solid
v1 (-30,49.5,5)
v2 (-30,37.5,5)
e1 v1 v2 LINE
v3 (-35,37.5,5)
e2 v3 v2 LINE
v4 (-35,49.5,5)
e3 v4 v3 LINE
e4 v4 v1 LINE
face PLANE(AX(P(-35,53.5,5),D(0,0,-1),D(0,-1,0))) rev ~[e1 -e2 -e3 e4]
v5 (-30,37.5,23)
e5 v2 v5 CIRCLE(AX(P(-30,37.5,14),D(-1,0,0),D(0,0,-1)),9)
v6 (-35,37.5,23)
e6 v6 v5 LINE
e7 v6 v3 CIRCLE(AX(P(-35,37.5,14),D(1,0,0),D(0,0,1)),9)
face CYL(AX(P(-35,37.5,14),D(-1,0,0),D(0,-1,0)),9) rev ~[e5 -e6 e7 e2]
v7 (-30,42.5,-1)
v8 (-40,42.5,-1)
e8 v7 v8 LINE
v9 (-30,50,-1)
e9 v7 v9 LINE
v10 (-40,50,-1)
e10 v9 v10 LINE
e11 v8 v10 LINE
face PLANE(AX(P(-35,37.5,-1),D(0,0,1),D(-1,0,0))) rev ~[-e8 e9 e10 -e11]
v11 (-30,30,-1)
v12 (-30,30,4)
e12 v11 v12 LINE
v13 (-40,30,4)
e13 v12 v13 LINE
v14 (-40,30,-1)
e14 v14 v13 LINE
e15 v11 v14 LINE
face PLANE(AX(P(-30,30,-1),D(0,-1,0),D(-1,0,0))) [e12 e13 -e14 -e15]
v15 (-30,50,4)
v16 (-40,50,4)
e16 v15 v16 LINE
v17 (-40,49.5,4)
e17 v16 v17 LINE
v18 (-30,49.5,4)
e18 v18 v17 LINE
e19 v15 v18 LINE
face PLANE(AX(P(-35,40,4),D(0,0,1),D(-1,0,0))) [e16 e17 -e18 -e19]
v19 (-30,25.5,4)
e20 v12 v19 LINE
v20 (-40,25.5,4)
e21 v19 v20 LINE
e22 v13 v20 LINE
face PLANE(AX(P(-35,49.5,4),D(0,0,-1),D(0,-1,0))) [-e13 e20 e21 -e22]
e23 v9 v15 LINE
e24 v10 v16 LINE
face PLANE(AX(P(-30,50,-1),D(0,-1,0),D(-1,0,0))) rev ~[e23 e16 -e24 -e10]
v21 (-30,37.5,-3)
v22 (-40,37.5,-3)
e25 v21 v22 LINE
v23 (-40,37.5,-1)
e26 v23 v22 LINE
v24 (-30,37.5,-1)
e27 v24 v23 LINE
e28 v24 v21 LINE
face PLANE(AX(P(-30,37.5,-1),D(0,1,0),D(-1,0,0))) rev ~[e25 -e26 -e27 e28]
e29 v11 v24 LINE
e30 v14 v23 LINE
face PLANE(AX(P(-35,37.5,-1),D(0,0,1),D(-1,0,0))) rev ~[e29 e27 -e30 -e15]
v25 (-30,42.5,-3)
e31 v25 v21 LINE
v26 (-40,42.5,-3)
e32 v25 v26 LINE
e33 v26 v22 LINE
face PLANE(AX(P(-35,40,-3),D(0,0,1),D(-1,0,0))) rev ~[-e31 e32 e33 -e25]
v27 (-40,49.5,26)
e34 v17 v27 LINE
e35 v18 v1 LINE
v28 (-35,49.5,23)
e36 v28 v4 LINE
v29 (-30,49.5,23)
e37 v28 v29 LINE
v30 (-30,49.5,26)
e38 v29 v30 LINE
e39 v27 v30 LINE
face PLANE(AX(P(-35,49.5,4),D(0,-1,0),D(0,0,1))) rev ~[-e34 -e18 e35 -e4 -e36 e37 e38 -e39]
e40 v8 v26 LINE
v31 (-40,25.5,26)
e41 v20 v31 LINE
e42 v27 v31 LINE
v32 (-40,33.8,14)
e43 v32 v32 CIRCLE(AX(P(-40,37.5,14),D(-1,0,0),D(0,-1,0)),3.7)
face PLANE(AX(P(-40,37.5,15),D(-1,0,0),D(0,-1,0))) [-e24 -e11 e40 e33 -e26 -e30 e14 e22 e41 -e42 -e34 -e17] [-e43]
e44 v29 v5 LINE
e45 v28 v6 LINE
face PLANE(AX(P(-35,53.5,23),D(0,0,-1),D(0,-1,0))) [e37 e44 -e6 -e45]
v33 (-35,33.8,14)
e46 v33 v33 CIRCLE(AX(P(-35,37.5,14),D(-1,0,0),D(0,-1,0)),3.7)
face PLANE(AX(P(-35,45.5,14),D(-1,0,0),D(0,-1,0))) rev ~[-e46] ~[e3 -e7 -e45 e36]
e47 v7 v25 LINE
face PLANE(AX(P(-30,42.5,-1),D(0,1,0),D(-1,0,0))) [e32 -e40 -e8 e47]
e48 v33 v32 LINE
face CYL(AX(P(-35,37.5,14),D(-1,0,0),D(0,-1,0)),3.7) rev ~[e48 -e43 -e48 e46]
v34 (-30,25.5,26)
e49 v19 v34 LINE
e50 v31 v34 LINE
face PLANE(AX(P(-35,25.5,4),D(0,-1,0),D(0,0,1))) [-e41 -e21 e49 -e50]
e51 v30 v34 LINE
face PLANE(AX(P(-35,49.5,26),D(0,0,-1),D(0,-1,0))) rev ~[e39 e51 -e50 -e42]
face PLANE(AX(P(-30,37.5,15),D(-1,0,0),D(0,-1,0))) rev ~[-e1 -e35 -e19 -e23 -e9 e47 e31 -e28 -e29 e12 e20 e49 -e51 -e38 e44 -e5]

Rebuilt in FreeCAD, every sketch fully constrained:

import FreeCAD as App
import Part
import Sketcher
from FreeCAD import Vector

doc = App.newDocument("Part")
body = doc.addObject("PartDesign::Body", "Body")

# Sketch on XY plane
sketch1 = body.newObject("Sketcher::SketchObject", "Sketch")
sketch1.AttachmentSupport = (doc.getObject("XY_Plane"), [""])
sketch1.MapMode = "FlatFace"
sketch1.addGeometry([
    Part.LineSegment(Vector(-5, 8, 0), Vector(-5, -12, 0)),
    Part.LineSegment(Vector(-5, -12, 0), Vector(5, -12, 0)),
    Part.LineSegment(Vector(5, -12, 0), Vector(5, 8, 0)),
    Part.LineSegment(Vector(5, 8, 0), Vector(-5, 8, 0)),
], False)
sketch1.addConstraint([
    Sketcher.Constraint("Coincident", 0, 2, 1, 1),
    Sketcher.Constraint("Coincident", 1, 2, 2, 1),
    Sketcher.Constraint("Coincident", 2, 2, 3, 1),
    Sketcher.Constraint("Coincident", 3, 2, 0, 1),
    Sketcher.Constraint("Vertical", 0),
    Sketcher.Constraint("Horizontal", 1),
    Sketcher.Constraint("Vertical", 2),
    Sketcher.Constraint("Horizontal", 3),
    Sketcher.Constraint("DistanceX", 1, 1, 1, 2, 10.0),
    Sketcher.Constraint("DistanceY", 0, 2, 0, 1, 20.0),
    Sketcher.Constraint("DistanceX", 0, 2, -1, 1, 5.0),
    Sketcher.Constraint("DistanceY", 0, 2, -1, 1, 12.5),
])
pad1 = body.newObject("PartDesign::Pad", "Pad")
pad1.Profile = sketch1
pad1.Length = 5

# Sketch on XY plane
sketch2 = body.newObject("Sketcher::SketchObject", "Sketch001")
sketch2.AttachmentSupport = (doc.getObject("XY_Plane"), [""])
sketch2.MapMode = "FlatFace"
sketch2.addGeometry([
    Part.LineSegment(Vector(-5, 5, 0), Vector(-5, -5, 0)),
    Part.LineSegment(Vector(-5, -5, 0), Vector(5, -5, 0)),
    Part.LineSegment(Vector(5, -5, 0), Vector(5, 5, 0)),
    Part.LineSegment(Vector(5, 5, 0), Vector(-5, 5, 0)),
], False)
sketch2.addConstraint([
    Sketcher.Constraint("Coincident", 0, 2, 1, 1),
    Sketcher.Constraint("Coincident", 1, 2, 2, 1),
    Sketcher.Constraint("Coincident", 2, 2, 3, 1),
    Sketcher.Constraint("Coincident", 3, 2, 0, 1),
    Sketcher.Constraint("Vertical", 0),
    Sketcher.Constraint("Horizontal", 1),
    Sketcher.Constraint("Vertical", 2),
    Sketcher.Constraint("Horizontal", 3),
    Sketcher.Constraint("Symmetric", 0, 2, 2, 2, -1, 1),
    Sketcher.Constraint("Equal", 3, 0),
    Sketcher.Constraint("DistanceX", 1, 1, 1, 2, 10.0),
])
pad2 = body.newObject("PartDesign::Pad", "Pad001")
pad2.Profile = sketch2
pad2.Length = 6

# Sketch on YZ plane
sketch3 = body.newObject("Sketcher::SketchObject", "Sketch002")
sketch3.AttachmentSupport = (doc.getObject("YZ_Plane"), [""])
sketch3.MapMode = "FlatFace"
sketch3.addGeometry([
    Part.LineSegment(Vector(-12, 27, 0), Vector(-12, 5, 0)),
    Part.LineSegment(Vector(-12, 5, 0), Vector(12, 5, 0)),
    Part.LineSegment(Vector(12, 5, 0), Vector(12, 27, 0)),
    Part.LineSegment(Vector(12, 27, 0), Vector(-12, 27, 0)),
], False)
sketch3.addConstraint([
    Sketcher.Constraint("Coincident", 0, 2, 1, 1),
    Sketcher.Constraint("Coincident", 1, 2, 2, 1),
    Sketcher.Constraint("Coincident", 2, 2, 3, 1),
    Sketcher.Constraint("Coincident", 3, 2, 0, 1),
    Sketcher.Constraint("Vertical", 0),
    Sketcher.Constraint("Horizontal", 1),
    Sketcher.Constraint("Vertical", 2),
    Sketcher.Constraint("Horizontal", 3),
    Sketcher.Constraint("DistanceX", 1, 1, 1, 2, 24.0),
    Sketcher.Constraint("DistanceY", 0, 2, 0, 1, 22.0),
    Sketcher.Constraint("DistanceX", 0, 2, -1, 1, 12.0),
    Sketcher.Constraint("DistanceY", -1, 1, 0, 2, 5.0),
])
pad3 = body.newObject("PartDesign::Pad", "Pad002")
pad3.Profile = sketch3
pad3.Length = 10
pad3.Midplane = True

# Sketch on YZ plane
sketch4 = body.newObject("Sketcher::SketchObject", "Sketch003")
sketch4.AttachmentSupport = (doc.getObject("YZ_Plane"), [""])
sketch4.MapMode = "FlatFace"
sketch4.addGeometry([
    Part.LineSegment(Vector(-16, 24, 0), Vector(-16, 6, 0)),
    Part.LineSegment(Vector(-16, 6, 0), Vector(0, 6, 0)),
    Part.LineSegment(Vector(0, 6, 0), Vector(0, 24, 0)),
    Part.LineSegment(Vector(0, 24, 0), Vector(-16, 24, 0)),
], False)
sketch4.addConstraint([
    Sketcher.Constraint("Coincident", 0, 2, 1, 1),
    Sketcher.Constraint("Coincident", 1, 2, 2, 1),
    Sketcher.Constraint("Coincident", 2, 2, 3, 1),
    Sketcher.Constraint("Coincident", 3, 2, 0, 1),
    Sketcher.Constraint("Vertical", 0),
    Sketcher.Constraint("Horizontal", 1),
    Sketcher.Constraint("Vertical", 2),
    Sketcher.Constraint("Horizontal", 3),
    Sketcher.Constraint("PointOnObject", 1, 2, -2),
    Sketcher.Constraint("DistanceX", 1, 1, 1, 2, 16.0),
    Sketcher.Constraint("DistanceY", 0, 2, 0, 1, 18.0),
    Sketcher.Constraint("DistanceY", -1, 1, 0, 2, 6.0),
])
pocket1 = body.newObject("PartDesign::Pocket", "Pocket")
pocket1.Profile = sketch4
pocket1.Length = 6

# Sketch on YZ plane
sketch5 = body.newObject("Sketcher::SketchObject", "Sketch004")
sketch5.AttachmentSupport = (doc.getObject("YZ_Plane"), [""])
sketch5.MapMode = "FlatFace"
sketch5.addGeometry(Part.Circle(Vector(0, 15, 0), Vector(0, 0, 1), 3.7), False)
sketch5.addConstraint([
    Sketcher.Constraint("PointOnObject", 0, 3, -2),
    Sketcher.Constraint("Diameter", 0, 7.4),
    Sketcher.Constraint("DistanceY", -1, 1, 0, 3, 15.0),
])
pocket2 = body.newObject("PartDesign::Pocket", "Pocket001")
pocket2.Profile = sketch5
pocket2.Length = 20
pocket2.Midplane = True

# Sketch on XY plane
sketch6 = body.newObject("Sketcher::SketchObject", "Sketch005")
sketch6.AttachmentSupport = (doc.getObject("XY_Plane"), [""])
sketch6.MapMode = "FlatFace"
sketch6.addGeometry([
    Part.LineSegment(Vector(-5, 0, 0), Vector(-5, -5, 0)),
    Part.LineSegment(Vector(-5, -5, 0), Vector(5, -5, 0)),
    Part.LineSegment(Vector(5, -5, 0), Vector(5, 0, 0)),
    Part.LineSegment(Vector(5, 0, 0), Vector(-5, 0, 0)),
], False)
sketch6.addConstraint([
    Sketcher.Constraint("Coincident", 0, 2, 1, 1),
    Sketcher.Constraint("Coincident", 1, 2, 2, 1),
    Sketcher.Constraint("Coincident", 2, 2, 3, 1),
    Sketcher.Constraint("Coincident", 3, 2, 0, 1),
    Sketcher.Constraint("Vertical", 0),
    Sketcher.Constraint("Horizontal", 1),
    Sketcher.Constraint("Vertical", 2),
    Sketcher.Constraint("Horizontal", 3),
    Sketcher.Constraint("Symmetric", 2, 2, 3, 2, -1, 1),
    Sketcher.Constraint("DistanceX", 1, 1, 1, 2, 10.0),
    Sketcher.Constraint("DistanceY", 0, 2, 0, 1, 5.0),
])
pad4 = body.newObject("PartDesign::Pad", "Pad003")
pad4.Profile = sketch6
pad4.Length = 2
pad4.Reversed = True

# Sketch on YZ plane
sketch7 = body.newObject("Sketcher::SketchObject", "Sketch006")
sketch7.AttachmentSupport = (doc.getObject("YZ_Plane"), [""])
sketch7.MapMode = "FlatFace"
sketch7.addGeometry(Part.Circle(Vector(0, 15, 0), Vector(0, 0, 1), 9), False)
sketch7.addConstraint([
    Sketcher.Constraint("PointOnObject", 0, 3, -2),
    Sketcher.Constraint("Diameter", 0, 18.0),
    Sketcher.Constraint("DistanceY", -1, 1, 0, 3, 15.0),
])
pocket3 = body.newObject("PartDesign::Pocket", "Pocket002")
pocket3.Profile = sketch7
pocket3.Length = 5
body2 = doc.addObject("PartDesign::Body", "Body001")
doc.recompute()

body.Placement = App.Placement(Vector(-35, 37.5, -1), App.Rotation(Vector(0, 0, 1), 180))
boolean = body2.newObject("PartDesign::Boolean", "Boolean")
boolean.Type = "Fuse"
boolean.addObjects([body])

doc.recompute()
